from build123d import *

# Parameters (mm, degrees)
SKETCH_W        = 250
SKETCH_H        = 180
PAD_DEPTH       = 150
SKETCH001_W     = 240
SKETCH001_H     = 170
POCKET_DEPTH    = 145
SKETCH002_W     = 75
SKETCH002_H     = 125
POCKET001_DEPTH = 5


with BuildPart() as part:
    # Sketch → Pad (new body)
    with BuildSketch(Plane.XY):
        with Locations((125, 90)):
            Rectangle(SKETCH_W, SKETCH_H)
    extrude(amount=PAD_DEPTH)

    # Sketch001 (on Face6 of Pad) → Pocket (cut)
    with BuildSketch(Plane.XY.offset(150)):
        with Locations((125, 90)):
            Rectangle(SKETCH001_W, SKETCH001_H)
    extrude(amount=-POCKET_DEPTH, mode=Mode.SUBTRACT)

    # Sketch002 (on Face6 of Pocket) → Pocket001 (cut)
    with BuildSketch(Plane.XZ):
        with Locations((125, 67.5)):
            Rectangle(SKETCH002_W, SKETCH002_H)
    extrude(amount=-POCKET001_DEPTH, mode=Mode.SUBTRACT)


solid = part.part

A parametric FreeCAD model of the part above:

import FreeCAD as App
import Part
import Sketcher
from FreeCAD import Vector

doc = App.newDocument("Part")
body = doc.addObject("PartDesign::Body", "Body")

# Sketch on XY plane
sketch1 = body.newObject("Sketcher::SketchObject", "Sketch")
sketch1.AttachmentSupport = (doc.getObject("XY_Plane"), [""])
sketch1.MapMode = "FlatFace"
sketch1.addGeometry([
    Part.LineSegment(Vector(0, 180, 0), Vector(0, 0, 0)),
    Part.LineSegment(Vector(0, 0, 0), Vector(250, 0, 0)),
    Part.LineSegment(Vector(250, 0, 0), Vector(250, 180, 0)),
    Part.LineSegment(Vector(250, 180, 0), Vector(0, 180, 0)),
], False)
sketch1.addConstraint([
    Sketcher.Constraint("Coincident", 0, 2, 1, 1),
    Sketcher.Constraint("Coincident", 1, 2, 2, 1),
    Sketcher.Constraint("Coincident", 2, 2, 3, 1),
    Sketcher.Constraint("Coincident", 3, 2, 0, 1),
    Sketcher.Constraint("Vertical", 0),
    Sketcher.Constraint("Horizontal", 1),
    Sketcher.Constraint("Vertical", 2),
    Sketcher.Constraint("Horizontal", 3),
    Sketcher.Constraint("Coincident", 0, 2, -1, 1),
    Sketcher.Constraint("DistanceX", 1, 1, 1, 2, 250.0),
    Sketcher.Constraint("DistanceY", 0, 2, 0, 1, 180.0),
])
pad1 = body.newObject("PartDesign::Pad", "Pad")
pad1.Profile = sketch1
pad1.Length = 150

# Sketch on XY plane
sketch2 = body.newObject("Sketcher::SketchObject", "Sketch001")
sketch2.AttachmentSupport = (doc.getObject("XY_Plane"), [""])
sketch2.MapMode = "FlatFace"
sketch2.AttachmentOffset = App.Placement(Vector(0, 0, 150), App.Rotation())
sketch2.addGeometry([
    Part.LineSegment(Vector(5, 175, 0), Vector(5, 5, 0)),
    Part.LineSegment(Vector(5, 5, 0), Vector(245, 5, 0)),
    Part.LineSegment(Vector(245, 5, 0), Vector(245, 175, 0)),
    Part.LineSegment(Vector(245, 175, 0), Vector(5, 175, 0)),
], False)
sketch2.addConstraint([
    Sketcher.Constraint("Coincident", 0, 2, 1, 1),
    Sketcher.Constraint("Coincident", 1, 2, 2, 1),
    Sketcher.Constraint("Coincident", 2, 2, 3, 1),
    Sketcher.Constraint("Coincident", 3, 2, 0, 1),
    Sketcher.Constraint("Vertical", 0),
    Sketcher.Constraint("Horizontal", 1),
    Sketcher.Constraint("Vertical", 2),
    Sketcher.Constraint("Horizontal", 3),
    Sketcher.Constraint("DistanceX", 1, 1, 1, 2, 240.0),
    Sketcher.Constraint("DistanceY", 0, 2, 0, 1, 170.0),
    Sketcher.Constraint("DistanceX", -1, 1, 0, 2, 5.0),
    Sketcher.Constraint("DistanceY", -1, 1, 0, 2, 5.0),
])
pocket1 = body.newObject("PartDesign::Pocket", "Pocket")
pocket1.Profile = sketch2
pocket1.Length = 145

# Sketch on XZ plane
sketch3 = body.newObject("Sketcher::SketchObject", "Sketch002")
sketch3.AttachmentSupport = (doc.getObject("XZ_Plane"), [""])
sketch3.MapMode = "FlatFace"
sketch3.addGeometry([
    Part.LineSegment(Vector(88, 130, 0), Vector(88, 5, 0)),
    Part.LineSegment(Vector(88, 5, 0), Vector(162, 5, 0)),
    Part.LineSegment(Vector(162, 5, 0), Vector(162, 130, 0)),
    Part.LineSegment(Vector(162, 130, 0), Vector(88, 130, 0)),
], False)
sketch3.addConstraint([
    Sketcher.Constraint("Coincident", 0, 2, 1, 1),
    Sketcher.Constraint("Coincident", 1, 2, 2, 1),
    Sketcher.Constraint("Coincident", 2, 2, 3, 1),
    Sketcher.Constraint("Coincident", 3, 2, 0, 1),
    Sketcher.Constraint("Vertical", 0),
    Sketcher.Constraint("Horizontal", 1),
    Sketcher.Constraint("Vertical", 2),
    Sketcher.Constraint("Horizontal", 3),
    Sketcher.Constraint("DistanceX", 1, 1, 1, 2, 75.0),
    Sketcher.Constraint("DistanceY", 0, 2, 0, 1, 125.0),
    Sketcher.Constraint("DistanceY", -1, 1, 0, 2, 5.0),
    Sketcher.Constraint("DistanceX", -1, 1, 0, 2, 87.5),
])
pocket2 = body.newObject("PartDesign::Pocket", "Pocket001")
pocket2.Profile = sketch3
pocket2.Length = 5

doc.recompute()
